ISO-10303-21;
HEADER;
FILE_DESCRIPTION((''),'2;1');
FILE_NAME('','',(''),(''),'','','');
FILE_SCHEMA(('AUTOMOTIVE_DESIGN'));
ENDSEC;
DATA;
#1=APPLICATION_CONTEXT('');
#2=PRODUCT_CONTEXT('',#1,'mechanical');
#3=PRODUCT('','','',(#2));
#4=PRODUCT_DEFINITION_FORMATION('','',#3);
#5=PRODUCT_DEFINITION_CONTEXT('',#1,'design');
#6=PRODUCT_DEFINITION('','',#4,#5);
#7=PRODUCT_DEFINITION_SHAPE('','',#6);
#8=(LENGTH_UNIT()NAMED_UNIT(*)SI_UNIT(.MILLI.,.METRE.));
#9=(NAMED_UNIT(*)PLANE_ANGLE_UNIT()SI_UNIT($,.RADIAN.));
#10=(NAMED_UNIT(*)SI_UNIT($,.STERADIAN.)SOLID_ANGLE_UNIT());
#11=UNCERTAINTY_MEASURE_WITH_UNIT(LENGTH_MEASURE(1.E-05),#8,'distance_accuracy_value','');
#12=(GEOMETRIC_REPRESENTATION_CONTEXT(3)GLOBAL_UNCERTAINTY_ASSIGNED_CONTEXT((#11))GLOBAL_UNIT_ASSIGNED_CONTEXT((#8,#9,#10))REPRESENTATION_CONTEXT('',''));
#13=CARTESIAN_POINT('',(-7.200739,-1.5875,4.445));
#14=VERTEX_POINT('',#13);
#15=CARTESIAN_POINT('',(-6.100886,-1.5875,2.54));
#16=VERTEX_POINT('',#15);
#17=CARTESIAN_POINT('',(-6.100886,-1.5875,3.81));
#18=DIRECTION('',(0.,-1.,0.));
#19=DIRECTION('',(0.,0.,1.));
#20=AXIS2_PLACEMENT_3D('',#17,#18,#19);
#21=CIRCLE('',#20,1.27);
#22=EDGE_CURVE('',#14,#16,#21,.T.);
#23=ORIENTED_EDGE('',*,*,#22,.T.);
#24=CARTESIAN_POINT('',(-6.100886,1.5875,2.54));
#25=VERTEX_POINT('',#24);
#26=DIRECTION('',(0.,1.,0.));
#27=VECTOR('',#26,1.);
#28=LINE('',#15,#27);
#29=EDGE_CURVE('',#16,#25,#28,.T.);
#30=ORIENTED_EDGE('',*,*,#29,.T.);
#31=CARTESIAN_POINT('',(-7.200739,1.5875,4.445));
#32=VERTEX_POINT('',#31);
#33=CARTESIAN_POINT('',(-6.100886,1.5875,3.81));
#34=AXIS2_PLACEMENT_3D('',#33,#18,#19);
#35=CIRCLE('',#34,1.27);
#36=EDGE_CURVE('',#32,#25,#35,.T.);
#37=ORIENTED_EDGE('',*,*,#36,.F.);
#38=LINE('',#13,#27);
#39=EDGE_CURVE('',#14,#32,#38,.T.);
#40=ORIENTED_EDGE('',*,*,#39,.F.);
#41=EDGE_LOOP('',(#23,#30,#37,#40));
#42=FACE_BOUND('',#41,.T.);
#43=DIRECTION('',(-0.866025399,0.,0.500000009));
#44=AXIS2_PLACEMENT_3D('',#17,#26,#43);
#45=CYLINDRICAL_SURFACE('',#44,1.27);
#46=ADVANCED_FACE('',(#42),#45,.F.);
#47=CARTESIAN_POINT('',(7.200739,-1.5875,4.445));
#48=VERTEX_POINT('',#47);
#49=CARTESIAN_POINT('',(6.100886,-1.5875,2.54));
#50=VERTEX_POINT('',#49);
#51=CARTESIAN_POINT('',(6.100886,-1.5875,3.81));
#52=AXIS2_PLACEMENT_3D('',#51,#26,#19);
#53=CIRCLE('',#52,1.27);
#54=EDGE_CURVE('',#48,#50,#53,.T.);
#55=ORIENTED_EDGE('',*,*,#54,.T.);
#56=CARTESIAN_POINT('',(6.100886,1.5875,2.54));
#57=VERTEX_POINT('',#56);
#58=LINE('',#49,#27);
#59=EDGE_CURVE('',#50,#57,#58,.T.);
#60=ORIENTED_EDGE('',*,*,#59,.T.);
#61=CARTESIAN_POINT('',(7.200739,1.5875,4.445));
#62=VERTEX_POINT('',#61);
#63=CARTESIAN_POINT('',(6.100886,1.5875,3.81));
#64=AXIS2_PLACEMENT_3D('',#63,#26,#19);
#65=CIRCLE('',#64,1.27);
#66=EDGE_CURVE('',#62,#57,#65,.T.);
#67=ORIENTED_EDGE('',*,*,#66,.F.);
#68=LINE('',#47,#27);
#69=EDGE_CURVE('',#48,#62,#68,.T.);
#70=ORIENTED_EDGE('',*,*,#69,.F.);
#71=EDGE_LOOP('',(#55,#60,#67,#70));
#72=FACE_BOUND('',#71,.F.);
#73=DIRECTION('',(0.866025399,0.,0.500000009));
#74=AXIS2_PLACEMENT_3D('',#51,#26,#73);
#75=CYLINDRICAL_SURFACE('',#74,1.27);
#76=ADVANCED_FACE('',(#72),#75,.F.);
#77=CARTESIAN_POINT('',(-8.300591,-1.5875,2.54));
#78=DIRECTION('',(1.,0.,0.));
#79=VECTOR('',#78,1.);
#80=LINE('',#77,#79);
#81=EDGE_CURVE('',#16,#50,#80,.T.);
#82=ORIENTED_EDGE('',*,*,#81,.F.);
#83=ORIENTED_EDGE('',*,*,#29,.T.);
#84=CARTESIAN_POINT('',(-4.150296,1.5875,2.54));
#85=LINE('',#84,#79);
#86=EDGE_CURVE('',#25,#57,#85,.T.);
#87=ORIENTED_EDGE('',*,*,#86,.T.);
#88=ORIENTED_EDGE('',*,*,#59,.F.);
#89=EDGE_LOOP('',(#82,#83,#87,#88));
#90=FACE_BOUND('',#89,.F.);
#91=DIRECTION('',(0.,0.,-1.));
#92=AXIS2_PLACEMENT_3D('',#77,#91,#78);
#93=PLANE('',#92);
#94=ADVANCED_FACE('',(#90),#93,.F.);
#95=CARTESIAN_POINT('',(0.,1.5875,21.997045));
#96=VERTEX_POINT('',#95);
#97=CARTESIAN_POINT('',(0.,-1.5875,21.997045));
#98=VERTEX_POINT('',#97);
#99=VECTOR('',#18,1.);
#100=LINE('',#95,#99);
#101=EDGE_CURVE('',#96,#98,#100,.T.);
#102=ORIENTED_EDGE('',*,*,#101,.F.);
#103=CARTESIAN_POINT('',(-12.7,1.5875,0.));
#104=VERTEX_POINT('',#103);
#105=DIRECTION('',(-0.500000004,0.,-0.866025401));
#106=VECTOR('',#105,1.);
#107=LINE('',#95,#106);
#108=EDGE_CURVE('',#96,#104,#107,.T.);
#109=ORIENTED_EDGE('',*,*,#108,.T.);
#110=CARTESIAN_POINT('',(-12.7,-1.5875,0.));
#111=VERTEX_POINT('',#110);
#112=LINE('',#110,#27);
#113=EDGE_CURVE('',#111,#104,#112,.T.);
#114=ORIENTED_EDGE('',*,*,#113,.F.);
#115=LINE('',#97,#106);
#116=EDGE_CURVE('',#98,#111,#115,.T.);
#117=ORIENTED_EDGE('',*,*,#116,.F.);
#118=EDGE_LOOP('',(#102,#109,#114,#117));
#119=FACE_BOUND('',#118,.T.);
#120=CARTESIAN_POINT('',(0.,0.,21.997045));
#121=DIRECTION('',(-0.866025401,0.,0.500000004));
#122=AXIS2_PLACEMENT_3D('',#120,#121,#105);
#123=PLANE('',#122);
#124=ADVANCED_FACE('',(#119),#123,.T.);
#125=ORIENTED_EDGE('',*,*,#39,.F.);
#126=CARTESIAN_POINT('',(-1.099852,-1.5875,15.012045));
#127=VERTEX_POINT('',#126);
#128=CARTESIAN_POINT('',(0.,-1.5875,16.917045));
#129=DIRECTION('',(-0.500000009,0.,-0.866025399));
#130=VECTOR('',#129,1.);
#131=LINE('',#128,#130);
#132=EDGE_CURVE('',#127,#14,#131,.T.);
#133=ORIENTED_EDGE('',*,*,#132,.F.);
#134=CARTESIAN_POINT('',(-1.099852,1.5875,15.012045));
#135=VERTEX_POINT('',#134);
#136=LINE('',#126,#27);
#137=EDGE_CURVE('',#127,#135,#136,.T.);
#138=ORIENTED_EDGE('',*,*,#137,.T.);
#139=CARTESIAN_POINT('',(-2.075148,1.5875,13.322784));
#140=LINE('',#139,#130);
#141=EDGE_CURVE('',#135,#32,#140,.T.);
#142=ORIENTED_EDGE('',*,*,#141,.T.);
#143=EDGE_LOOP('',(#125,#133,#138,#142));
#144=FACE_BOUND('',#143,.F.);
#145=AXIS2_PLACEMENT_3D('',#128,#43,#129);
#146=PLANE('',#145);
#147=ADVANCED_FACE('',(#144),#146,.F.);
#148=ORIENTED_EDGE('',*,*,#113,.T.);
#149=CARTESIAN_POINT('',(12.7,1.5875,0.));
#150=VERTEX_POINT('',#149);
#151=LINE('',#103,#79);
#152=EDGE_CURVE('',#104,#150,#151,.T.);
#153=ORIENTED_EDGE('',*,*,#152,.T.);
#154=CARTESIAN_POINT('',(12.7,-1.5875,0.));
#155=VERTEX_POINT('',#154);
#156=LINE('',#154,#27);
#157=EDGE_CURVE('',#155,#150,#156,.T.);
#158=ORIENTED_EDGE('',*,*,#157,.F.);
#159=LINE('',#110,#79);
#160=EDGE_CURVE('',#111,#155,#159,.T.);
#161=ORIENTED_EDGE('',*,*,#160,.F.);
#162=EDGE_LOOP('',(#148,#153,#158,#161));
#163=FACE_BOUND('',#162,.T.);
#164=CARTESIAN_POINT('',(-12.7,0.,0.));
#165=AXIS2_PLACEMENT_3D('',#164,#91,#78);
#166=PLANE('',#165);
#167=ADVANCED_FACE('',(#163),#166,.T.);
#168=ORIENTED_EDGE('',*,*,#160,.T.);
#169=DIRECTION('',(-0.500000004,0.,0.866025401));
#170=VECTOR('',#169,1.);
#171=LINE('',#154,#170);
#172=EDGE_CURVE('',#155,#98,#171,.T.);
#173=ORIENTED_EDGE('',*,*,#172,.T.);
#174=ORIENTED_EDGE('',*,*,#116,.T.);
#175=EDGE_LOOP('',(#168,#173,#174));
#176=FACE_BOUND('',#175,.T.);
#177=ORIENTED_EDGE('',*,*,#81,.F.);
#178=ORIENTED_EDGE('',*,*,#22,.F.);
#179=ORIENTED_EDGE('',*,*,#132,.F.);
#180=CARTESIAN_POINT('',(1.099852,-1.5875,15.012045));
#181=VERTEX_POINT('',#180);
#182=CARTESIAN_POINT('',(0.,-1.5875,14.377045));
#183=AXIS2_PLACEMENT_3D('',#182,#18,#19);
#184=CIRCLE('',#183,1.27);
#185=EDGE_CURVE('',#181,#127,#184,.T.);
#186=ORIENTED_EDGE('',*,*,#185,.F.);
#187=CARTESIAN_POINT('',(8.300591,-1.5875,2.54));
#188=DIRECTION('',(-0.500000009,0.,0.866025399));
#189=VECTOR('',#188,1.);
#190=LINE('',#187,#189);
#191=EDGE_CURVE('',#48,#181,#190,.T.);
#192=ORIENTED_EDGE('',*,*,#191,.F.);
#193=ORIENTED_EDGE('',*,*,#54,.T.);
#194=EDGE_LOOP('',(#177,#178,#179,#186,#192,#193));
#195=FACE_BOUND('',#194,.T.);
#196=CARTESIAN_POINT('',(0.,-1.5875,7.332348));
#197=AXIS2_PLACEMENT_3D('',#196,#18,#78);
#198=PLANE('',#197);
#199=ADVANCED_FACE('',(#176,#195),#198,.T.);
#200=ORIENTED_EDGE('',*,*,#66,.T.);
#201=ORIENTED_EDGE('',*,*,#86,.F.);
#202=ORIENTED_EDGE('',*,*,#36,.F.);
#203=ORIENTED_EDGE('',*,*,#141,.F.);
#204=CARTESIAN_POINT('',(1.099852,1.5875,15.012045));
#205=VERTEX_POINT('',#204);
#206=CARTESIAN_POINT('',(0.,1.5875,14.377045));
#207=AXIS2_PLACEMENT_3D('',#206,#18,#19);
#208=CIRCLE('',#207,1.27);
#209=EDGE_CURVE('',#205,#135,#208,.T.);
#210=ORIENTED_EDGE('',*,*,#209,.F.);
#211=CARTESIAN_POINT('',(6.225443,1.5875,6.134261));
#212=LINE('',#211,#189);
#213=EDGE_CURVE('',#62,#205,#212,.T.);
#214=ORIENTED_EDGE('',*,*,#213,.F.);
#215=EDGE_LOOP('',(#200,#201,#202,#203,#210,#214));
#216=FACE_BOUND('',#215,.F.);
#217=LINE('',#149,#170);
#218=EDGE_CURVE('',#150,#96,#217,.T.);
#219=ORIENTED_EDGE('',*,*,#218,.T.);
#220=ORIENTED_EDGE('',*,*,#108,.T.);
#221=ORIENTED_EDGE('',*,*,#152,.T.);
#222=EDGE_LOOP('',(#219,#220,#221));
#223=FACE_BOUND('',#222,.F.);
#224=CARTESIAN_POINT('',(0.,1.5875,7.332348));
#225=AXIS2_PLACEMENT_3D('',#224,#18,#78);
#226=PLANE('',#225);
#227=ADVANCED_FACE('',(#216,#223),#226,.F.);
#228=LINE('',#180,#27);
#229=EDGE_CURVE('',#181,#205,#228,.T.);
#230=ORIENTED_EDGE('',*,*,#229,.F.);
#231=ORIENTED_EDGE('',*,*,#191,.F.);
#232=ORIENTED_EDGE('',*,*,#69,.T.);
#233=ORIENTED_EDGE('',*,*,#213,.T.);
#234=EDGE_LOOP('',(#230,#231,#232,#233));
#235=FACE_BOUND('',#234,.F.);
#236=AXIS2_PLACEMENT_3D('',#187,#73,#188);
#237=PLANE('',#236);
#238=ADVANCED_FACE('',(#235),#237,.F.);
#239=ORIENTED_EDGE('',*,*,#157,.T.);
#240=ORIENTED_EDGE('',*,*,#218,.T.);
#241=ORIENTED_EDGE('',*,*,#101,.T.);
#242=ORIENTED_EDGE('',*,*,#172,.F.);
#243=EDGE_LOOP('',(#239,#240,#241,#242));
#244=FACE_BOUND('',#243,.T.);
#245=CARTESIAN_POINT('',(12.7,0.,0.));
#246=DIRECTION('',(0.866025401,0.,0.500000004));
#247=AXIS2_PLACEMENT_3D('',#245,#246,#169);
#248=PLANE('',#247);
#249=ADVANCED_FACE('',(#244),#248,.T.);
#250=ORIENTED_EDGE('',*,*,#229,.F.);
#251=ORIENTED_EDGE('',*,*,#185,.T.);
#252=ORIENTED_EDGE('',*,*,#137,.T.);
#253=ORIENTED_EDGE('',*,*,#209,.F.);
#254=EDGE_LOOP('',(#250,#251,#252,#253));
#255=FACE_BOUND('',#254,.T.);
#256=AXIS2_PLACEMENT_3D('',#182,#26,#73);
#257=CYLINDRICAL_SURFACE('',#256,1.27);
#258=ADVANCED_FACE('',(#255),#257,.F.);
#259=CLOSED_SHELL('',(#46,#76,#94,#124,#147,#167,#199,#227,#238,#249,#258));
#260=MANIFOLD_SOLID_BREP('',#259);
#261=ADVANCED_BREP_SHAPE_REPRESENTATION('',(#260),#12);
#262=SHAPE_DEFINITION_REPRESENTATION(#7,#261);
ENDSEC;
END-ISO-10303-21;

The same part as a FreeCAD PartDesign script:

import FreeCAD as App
import Part
import Sketcher

V = App.Vector
Q = App.Units.Quantity


def edges_at(feature, points):
    """Names of the edges that pass closest to the given points."""
    edges = feature.Shape.Edges
    near = lambda p: min(range(len(edges)), key=lambda i: edges[i].distToShape(Part.Vertex(*p))[0])
    return sorted({f"Edge{near(p) + 1}" for p in points})


def add_polygon(sketch, points):
    """Adds a closed chain of lines whose ends are joined by coincident constraints."""
    first, n = sketch.GeometryCount, len(points)
    for a, b in zip(points, points[1:] + points[:1]):
        sketch.addGeometry(Part.LineSegment(App.Vector(*a, 0), App.Vector(*b, 0)), False)
    for i in range(n):
        sketch.addConstraint(Sketcher.Constraint("Coincident", first + i, 2, first + (i + 1) % n, 1))

doc = App.newDocument("Part")
params = doc.addObject("Spreadsheet::Sheet", "Params")
for row, (alias, value) in enumerate([
    ("sketch1_width", "1 in"),
    ("sketch1_length", "1 in"),
    ("pad1_length", "0.125 in"),
    ("fillet_radius", "0.05 in"),
], start=1):
    params.set(f"A{row}", alias)
    params.set(f"B{row}", "=" + value)
    params.setAlias(f"B{row}", alias)

body = doc.addObject("PartDesign::Body", "Body")

# Sketch on XZ plane
sketch1 = body.newObject("Sketcher::SketchObject", "Sketch")
sketch1.AttachmentSupport = (doc.getObject("XZ_Plane"), [""])
sketch1.MapMode = "FlatFace"
add_polygon(sketch1, [(13, 0), (0, 22), (-13, 0)])  # lines 0-2
sketch1.addConstraint([
    Sketcher.Constraint("Horizontal", 2),
    Sketcher.Constraint("Symmetric", 1, 2, 2, 2, -1, 1),
    Sketcher.Constraint("PointOnObject", 0, 2, -2),
    Sketcher.Constraint("DistanceX", 2, 1, 2, 2, Q("1 in")),
    Sketcher.Constraint("Distance", 0, Q("1 in")),
])
sketch1.setExpression("Constraints[6]", "Params.sketch1_width")
sketch1.setExpression("Constraints[7]", "Params.sketch1_length")
pad1 = body.newObject("PartDesign::Pad", "Pad")
pad1.Profile = sketch1
pad1.setExpression("Length", "Params.pad1_length")
pad1.Midplane = True

# Sketch on XZ plane
sketch2 = body.newObject("Sketcher::SketchObject", "Sketch001")
sketch2.AttachmentSupport = (doc.getObject("XZ_Plane"), [""])
sketch2.MapMode = "FlatFace"
sketch2.AttachmentOffset = App.Placement(V(0, 0, 0.0625 * 25.4), App.Rotation())
add_polygon(sketch2, [(8, 3), (0, 17), (-8, 3)])  # lines 0-2
sketch2.addConstraint([
    Sketcher.Constraint("Horizontal", 2),
    Sketcher.Constraint("PointOnObject", 0, 2, -2),
    Sketcher.Constraint("Equal", 0, 1),
    Sketcher.Constraint("Angle", 0, Q("120.000001 deg")),
    Sketcher.Constraint("DistanceY", -1, 1, 1, 2, Q("0.1 in")),
    Sketcher.Constraint("Distance", 0, 16.601182),
])
pocket1 = body.newObject("PartDesign::Pocket", "Pocket")
pocket1.Profile = sketch2
pocket1.Type = "ThroughAll"
doc.recompute()

fillet = body.newObject("PartDesign::Fillet", "Fillet")
fillet.Base = (pocket1, edges_at(pocket1, [(0, 0, 16.917), (8.301, 0, 2.54), (-8.301, 0, 2.54)]))
fillet.setExpression("Radius", "Params.fillet_radius")

doc.recompute()
